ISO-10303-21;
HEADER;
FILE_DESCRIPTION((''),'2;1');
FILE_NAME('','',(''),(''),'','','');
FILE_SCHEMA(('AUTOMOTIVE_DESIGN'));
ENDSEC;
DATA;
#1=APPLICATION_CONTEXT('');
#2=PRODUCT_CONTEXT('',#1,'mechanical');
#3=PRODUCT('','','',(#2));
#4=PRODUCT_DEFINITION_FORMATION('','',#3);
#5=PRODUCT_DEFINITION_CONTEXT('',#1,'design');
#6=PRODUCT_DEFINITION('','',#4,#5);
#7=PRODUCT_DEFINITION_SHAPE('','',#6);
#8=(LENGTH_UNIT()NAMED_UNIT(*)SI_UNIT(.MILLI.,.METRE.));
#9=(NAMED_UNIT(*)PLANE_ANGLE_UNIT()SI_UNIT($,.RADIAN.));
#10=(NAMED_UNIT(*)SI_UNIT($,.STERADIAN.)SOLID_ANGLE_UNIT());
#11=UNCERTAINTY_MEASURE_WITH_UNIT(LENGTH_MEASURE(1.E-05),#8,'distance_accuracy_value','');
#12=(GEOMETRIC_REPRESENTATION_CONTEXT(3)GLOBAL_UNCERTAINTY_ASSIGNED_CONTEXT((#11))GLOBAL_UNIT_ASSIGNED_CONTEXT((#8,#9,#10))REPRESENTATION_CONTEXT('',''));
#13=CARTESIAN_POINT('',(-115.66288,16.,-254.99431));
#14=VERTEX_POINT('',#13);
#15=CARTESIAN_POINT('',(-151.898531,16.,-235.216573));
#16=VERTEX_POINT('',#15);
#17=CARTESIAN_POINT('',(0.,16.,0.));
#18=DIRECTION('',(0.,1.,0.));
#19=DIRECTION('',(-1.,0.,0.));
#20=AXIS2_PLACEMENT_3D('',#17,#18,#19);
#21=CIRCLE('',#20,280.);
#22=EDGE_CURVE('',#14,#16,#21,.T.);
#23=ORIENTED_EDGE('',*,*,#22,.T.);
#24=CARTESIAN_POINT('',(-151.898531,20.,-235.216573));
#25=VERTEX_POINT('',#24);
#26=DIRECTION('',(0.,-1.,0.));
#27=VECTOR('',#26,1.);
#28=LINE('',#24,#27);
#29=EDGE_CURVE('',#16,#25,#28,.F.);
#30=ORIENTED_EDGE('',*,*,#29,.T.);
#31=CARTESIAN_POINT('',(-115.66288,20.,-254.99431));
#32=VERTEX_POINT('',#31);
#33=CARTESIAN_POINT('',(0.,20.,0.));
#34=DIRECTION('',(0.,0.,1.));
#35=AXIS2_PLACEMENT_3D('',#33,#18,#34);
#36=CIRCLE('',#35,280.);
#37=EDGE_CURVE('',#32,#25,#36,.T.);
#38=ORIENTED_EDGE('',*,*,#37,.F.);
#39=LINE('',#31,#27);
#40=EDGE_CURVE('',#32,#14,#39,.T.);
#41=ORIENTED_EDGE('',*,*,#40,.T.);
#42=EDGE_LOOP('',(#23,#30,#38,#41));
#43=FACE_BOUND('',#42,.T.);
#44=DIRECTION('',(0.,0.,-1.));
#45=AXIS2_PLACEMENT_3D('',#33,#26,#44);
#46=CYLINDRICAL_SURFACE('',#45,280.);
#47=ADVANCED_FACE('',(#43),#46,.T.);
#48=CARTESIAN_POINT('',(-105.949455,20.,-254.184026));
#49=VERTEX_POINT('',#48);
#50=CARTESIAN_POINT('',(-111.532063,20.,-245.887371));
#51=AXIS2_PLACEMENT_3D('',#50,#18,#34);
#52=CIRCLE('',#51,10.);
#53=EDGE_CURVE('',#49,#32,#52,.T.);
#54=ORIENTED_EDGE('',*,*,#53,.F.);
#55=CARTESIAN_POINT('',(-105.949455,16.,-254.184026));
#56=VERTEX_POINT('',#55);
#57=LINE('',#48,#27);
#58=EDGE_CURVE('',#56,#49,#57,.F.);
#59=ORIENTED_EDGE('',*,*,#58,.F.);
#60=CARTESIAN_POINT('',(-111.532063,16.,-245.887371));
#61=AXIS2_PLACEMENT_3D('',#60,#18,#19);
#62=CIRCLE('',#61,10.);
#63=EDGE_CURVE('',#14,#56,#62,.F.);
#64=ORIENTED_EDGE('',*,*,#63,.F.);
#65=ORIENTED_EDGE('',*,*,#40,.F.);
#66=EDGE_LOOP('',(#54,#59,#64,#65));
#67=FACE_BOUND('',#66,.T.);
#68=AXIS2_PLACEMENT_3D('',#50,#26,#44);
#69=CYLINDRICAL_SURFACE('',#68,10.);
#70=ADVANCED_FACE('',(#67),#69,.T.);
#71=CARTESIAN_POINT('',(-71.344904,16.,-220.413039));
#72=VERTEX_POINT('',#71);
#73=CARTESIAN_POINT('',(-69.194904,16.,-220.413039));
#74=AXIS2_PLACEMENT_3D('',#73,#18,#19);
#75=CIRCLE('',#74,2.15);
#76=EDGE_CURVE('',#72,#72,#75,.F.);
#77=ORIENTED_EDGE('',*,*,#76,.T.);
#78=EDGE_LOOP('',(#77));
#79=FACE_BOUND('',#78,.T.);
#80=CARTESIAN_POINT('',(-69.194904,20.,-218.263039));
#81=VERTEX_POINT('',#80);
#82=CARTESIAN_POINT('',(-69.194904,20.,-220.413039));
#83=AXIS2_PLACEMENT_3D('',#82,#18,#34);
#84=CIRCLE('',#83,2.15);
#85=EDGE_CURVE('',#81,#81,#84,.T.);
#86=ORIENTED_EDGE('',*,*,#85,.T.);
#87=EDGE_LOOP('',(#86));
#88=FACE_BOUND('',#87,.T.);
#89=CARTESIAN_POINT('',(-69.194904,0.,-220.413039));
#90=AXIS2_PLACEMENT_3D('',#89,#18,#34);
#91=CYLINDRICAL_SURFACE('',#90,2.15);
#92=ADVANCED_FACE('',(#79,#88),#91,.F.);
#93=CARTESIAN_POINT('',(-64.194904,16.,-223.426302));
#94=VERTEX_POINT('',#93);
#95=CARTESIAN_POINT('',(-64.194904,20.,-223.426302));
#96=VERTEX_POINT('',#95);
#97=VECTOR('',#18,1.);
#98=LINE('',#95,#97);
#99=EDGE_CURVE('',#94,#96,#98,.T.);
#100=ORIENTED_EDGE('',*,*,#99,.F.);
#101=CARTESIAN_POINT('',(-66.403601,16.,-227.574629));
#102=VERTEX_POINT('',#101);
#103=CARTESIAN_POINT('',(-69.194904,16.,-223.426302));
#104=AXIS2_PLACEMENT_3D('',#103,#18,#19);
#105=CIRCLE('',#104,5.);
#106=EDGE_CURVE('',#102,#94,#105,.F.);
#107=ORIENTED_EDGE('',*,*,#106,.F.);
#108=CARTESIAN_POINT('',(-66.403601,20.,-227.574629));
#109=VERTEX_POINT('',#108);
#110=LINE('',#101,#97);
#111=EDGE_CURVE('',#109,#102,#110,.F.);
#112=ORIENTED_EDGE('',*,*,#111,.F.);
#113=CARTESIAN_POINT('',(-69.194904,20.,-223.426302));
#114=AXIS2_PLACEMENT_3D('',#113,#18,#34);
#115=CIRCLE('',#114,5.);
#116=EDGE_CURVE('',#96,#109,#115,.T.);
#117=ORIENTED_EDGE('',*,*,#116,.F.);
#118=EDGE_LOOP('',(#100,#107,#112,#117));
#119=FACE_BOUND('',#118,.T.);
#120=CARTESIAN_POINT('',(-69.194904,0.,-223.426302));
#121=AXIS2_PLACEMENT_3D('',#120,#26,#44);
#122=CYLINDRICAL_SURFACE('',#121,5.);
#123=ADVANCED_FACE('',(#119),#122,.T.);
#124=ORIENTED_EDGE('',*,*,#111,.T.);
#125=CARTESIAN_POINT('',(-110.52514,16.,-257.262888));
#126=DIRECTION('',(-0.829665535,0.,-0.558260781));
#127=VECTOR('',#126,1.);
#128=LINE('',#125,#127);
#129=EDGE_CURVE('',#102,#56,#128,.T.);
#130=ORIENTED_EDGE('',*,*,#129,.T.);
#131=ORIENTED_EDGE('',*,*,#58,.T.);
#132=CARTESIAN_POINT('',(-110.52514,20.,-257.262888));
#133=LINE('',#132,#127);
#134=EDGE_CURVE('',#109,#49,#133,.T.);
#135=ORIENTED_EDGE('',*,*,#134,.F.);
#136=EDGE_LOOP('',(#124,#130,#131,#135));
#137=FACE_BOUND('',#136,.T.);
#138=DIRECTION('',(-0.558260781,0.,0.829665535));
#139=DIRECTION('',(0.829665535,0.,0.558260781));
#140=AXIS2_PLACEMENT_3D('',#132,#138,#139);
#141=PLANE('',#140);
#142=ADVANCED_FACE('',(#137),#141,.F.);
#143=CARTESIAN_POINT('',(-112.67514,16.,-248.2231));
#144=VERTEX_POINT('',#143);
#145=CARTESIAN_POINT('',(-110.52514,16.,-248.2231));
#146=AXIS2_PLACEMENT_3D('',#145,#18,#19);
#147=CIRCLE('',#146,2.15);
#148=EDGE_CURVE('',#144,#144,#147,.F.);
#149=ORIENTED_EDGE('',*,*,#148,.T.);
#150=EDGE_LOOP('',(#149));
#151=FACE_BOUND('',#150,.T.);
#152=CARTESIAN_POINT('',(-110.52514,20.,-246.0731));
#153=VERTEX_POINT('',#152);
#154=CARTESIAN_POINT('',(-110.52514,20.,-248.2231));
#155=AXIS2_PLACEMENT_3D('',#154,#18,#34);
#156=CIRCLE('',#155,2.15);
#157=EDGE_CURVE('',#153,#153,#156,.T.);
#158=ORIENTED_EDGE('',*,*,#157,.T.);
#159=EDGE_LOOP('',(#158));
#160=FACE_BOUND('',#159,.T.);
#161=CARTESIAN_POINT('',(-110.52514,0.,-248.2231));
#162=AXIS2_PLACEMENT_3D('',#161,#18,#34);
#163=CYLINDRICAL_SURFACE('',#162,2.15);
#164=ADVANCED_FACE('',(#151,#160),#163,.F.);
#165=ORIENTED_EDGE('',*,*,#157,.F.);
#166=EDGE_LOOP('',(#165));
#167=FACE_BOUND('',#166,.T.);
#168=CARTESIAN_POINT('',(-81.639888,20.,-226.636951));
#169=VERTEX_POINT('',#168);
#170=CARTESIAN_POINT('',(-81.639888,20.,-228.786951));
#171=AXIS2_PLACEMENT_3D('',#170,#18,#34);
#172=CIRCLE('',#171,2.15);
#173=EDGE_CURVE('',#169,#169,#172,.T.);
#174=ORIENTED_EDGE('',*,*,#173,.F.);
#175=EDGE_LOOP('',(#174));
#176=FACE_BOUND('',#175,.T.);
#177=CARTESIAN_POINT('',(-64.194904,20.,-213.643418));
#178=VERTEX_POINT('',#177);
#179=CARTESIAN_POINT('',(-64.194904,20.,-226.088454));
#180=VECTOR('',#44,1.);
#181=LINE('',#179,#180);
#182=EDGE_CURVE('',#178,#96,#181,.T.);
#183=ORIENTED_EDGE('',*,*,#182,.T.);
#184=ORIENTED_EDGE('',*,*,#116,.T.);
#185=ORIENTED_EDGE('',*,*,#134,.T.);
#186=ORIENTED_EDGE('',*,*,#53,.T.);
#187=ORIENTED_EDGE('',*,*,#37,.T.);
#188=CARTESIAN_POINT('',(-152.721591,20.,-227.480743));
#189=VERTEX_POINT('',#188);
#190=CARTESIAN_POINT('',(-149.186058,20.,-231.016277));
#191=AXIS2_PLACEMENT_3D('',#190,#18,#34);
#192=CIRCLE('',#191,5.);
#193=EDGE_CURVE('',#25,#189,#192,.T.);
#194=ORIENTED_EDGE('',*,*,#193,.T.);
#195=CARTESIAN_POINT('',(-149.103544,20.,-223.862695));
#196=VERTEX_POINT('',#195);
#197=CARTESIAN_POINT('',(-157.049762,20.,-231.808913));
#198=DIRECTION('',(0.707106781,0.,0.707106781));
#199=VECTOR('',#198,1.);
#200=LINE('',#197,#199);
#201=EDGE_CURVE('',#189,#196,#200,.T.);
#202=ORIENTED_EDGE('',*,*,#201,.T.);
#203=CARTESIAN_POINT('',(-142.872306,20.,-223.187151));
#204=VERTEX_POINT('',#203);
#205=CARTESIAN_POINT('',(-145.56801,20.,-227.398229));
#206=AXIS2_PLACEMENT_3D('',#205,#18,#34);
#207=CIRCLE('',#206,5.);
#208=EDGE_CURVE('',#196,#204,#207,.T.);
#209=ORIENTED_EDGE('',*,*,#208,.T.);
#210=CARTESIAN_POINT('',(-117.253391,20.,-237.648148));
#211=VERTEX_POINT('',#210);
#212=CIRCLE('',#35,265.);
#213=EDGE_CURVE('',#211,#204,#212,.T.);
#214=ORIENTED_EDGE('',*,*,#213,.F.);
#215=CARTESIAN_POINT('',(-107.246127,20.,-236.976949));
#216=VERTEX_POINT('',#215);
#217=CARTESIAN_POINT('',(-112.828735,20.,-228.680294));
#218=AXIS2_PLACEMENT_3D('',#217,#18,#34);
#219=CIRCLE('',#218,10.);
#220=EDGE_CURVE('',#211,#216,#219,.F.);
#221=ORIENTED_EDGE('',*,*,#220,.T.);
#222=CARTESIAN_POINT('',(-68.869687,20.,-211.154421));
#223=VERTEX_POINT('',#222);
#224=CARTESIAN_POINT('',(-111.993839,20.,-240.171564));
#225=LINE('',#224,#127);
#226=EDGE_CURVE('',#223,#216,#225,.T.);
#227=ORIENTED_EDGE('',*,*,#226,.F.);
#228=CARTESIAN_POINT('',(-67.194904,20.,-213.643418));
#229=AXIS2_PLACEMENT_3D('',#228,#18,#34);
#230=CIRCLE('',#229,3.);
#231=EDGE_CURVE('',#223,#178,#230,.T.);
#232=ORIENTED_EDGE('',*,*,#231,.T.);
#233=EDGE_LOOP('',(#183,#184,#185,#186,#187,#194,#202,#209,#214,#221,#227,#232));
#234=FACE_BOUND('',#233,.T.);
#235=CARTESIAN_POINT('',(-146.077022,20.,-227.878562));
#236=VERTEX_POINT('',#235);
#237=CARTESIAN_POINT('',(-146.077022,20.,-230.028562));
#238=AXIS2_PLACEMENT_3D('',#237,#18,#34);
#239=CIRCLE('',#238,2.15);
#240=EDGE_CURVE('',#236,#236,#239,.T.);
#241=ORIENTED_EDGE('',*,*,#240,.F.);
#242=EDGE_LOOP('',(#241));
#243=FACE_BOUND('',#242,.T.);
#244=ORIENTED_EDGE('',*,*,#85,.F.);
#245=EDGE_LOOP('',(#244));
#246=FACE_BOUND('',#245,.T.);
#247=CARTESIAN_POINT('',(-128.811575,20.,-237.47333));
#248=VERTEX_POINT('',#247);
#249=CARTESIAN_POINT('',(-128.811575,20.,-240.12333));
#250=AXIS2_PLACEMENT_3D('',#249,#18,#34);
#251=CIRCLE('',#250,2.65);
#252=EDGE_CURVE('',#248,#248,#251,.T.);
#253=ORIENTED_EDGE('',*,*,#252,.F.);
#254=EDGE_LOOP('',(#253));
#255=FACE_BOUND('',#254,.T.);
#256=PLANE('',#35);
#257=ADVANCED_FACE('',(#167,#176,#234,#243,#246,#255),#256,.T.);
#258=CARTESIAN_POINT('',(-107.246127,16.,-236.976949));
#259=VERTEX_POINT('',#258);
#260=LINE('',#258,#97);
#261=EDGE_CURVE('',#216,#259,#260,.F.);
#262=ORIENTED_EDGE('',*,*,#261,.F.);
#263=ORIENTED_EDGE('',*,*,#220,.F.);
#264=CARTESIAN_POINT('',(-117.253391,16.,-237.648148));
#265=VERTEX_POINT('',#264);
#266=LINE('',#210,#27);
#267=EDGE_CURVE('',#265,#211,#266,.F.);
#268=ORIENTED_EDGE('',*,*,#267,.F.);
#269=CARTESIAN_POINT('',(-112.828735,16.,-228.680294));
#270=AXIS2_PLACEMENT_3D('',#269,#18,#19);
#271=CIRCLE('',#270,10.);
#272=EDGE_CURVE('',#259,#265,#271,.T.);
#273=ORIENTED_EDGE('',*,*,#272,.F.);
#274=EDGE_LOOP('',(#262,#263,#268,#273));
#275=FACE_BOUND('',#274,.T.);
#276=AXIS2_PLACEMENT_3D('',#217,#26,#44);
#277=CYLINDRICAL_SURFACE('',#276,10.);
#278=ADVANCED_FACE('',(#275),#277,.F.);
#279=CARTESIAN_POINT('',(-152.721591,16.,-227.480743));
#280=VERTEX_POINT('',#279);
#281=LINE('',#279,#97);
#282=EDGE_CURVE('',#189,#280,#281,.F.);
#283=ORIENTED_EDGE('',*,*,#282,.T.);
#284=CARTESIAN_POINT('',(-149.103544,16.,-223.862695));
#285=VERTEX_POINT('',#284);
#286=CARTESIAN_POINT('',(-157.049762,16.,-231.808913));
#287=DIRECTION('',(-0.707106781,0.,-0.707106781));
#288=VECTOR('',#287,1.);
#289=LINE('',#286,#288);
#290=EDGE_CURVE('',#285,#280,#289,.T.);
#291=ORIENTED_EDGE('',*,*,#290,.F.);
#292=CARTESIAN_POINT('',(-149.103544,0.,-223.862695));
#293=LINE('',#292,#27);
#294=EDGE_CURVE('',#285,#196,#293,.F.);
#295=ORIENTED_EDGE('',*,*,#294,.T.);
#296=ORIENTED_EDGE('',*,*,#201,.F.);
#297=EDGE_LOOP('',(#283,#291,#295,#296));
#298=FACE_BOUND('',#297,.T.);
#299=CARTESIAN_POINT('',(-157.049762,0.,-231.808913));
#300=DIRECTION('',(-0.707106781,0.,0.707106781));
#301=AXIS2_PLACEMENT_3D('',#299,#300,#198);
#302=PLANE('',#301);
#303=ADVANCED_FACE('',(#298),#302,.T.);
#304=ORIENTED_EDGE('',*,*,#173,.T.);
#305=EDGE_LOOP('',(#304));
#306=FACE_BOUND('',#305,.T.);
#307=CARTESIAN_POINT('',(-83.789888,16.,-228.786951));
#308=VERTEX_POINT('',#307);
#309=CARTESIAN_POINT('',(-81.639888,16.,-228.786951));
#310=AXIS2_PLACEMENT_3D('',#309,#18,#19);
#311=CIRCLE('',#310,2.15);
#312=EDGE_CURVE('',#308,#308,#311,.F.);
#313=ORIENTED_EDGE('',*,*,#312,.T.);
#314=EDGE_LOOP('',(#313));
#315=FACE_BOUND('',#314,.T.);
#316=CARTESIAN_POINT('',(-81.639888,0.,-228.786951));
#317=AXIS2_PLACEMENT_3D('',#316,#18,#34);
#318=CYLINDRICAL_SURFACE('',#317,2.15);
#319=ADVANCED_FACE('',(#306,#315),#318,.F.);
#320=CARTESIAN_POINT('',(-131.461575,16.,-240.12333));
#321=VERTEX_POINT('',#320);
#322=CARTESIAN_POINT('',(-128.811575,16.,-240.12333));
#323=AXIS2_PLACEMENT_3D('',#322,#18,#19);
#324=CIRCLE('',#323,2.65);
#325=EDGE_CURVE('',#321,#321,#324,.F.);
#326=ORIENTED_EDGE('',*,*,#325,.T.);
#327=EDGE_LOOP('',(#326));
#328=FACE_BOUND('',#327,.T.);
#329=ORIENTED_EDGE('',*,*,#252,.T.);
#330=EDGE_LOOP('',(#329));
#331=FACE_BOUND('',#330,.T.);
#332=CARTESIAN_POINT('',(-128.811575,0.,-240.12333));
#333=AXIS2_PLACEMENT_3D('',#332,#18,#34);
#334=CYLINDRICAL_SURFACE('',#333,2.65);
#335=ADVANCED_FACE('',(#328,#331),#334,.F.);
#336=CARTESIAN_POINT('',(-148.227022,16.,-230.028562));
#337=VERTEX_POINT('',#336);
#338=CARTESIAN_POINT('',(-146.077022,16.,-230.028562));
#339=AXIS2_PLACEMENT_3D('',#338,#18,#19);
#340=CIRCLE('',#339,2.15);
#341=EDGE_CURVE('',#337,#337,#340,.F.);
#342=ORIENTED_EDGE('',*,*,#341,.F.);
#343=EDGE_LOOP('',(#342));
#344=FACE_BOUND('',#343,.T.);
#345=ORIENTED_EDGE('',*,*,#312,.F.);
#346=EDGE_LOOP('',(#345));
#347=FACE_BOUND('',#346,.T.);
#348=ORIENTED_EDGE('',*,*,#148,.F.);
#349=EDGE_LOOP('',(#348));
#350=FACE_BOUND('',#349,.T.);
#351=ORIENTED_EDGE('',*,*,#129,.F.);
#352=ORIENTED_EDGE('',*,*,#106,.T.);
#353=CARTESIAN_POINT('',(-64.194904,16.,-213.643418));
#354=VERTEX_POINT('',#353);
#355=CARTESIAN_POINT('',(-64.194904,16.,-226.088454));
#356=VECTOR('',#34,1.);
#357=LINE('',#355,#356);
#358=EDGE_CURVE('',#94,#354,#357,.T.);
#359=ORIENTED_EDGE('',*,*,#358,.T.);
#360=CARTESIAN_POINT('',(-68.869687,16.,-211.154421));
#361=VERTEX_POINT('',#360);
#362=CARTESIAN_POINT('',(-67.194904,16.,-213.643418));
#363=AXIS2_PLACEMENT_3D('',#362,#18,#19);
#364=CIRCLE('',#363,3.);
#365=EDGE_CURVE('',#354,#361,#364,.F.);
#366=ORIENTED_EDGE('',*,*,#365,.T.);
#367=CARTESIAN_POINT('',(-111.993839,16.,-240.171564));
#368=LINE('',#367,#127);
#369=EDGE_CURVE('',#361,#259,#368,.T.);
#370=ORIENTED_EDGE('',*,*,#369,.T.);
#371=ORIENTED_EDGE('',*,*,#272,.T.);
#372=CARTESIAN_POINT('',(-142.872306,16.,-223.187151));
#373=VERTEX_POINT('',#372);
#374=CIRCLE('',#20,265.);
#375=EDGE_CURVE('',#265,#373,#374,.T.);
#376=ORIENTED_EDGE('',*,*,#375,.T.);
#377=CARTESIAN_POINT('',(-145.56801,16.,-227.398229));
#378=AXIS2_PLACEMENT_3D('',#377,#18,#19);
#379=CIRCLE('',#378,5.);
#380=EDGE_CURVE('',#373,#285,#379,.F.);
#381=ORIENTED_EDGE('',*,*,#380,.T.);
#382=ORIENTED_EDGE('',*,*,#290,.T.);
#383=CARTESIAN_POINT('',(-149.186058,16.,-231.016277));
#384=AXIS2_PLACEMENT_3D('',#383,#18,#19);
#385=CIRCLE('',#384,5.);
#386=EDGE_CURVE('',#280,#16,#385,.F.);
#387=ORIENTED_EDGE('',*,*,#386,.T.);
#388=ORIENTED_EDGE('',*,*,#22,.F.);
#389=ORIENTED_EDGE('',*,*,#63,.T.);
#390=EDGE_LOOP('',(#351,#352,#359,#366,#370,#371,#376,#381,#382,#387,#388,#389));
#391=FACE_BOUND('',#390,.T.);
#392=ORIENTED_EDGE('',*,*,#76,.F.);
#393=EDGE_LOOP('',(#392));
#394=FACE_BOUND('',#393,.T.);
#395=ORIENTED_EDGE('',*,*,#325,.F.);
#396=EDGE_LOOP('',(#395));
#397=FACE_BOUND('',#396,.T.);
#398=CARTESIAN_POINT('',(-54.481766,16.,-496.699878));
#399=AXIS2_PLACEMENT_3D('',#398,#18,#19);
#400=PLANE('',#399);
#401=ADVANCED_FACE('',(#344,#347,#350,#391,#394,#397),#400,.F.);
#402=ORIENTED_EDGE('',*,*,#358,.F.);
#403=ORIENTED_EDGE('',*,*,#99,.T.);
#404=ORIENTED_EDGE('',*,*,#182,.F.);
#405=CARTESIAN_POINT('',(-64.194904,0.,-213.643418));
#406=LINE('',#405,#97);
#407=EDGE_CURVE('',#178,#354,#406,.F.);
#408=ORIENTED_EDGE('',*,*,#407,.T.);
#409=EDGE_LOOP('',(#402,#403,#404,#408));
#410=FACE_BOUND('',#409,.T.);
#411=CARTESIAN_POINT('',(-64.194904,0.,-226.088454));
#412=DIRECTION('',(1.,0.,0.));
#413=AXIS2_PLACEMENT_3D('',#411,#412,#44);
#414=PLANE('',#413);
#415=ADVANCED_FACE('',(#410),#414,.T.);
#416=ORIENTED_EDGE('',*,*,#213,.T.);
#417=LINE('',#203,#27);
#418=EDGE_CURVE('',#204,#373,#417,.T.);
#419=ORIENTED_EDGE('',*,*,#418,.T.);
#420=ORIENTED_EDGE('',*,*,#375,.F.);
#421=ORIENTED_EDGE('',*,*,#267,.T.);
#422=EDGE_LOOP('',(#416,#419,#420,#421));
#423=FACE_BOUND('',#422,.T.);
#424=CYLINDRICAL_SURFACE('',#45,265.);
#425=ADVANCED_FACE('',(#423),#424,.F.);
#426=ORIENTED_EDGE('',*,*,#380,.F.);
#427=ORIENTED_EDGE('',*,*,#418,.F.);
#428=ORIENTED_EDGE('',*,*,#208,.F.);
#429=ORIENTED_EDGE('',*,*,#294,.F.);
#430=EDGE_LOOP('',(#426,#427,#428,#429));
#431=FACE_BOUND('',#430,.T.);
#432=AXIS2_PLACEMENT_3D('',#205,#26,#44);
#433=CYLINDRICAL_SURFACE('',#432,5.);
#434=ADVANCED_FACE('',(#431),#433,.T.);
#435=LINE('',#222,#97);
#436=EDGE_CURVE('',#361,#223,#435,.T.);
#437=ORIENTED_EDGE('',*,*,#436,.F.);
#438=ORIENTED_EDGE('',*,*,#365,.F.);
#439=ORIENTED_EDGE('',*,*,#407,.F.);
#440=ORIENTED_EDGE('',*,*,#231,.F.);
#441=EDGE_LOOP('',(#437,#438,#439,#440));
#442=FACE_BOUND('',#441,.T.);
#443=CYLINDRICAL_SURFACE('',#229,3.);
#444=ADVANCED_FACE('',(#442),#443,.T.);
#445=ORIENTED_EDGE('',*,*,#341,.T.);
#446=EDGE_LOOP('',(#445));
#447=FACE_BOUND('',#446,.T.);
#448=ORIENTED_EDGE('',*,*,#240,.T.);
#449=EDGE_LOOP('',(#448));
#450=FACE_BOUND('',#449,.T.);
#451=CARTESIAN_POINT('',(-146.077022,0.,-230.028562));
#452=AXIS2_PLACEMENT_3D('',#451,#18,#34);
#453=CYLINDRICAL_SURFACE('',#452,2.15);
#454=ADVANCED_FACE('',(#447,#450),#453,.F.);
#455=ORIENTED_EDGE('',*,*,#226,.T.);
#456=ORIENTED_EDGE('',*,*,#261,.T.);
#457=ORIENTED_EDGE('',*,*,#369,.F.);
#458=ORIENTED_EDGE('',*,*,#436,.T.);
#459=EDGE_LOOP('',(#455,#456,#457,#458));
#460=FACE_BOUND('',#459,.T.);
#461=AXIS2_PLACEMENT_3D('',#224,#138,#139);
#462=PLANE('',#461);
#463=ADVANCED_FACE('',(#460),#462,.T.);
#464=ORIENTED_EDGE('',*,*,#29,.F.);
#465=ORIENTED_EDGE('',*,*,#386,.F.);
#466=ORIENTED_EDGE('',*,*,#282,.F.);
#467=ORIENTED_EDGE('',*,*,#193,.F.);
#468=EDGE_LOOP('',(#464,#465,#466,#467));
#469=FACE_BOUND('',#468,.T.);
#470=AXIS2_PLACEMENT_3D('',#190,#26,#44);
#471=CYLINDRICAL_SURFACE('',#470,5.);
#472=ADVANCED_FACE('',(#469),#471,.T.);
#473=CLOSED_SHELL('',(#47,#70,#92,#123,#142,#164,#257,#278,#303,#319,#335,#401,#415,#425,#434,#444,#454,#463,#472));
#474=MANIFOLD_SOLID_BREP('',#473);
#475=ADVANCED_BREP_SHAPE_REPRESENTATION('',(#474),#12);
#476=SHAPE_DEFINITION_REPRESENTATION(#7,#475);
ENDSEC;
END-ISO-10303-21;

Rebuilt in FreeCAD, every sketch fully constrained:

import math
import FreeCAD as App
import Part
import Sketcher

V = App.Vector
Q = App.Units.Quantity


def edges_at(feature, points):
    """Names of the edges that pass closest to the given points."""
    edges = feature.Shape.Edges
    near = lambda p: min(range(len(edges)), key=lambda i: edges[i].distToShape(Part.Vertex(*p))[0])
    return sorted({f"Edge{near(p) + 1}" for p in points})


def add_polygon(sketch, points):
    """Adds a closed chain of lines whose ends are joined by coincident constraints."""
    first, n = sketch.GeometryCount, len(points)
    for a, b in zip(points, points[1:] + points[:1]):
        sketch.addGeometry(Part.LineSegment(App.Vector(*a, 0), App.Vector(*b, 0)), False)
    for i in range(n):
        sketch.addConstraint(Sketcher.Constraint("Coincident", first + i, 2, first + (i + 1) % n, 1))

doc = App.newDocument("Part")
params = doc.addObject("Spreadsheet::Sheet", "Params")
for row, (alias, value) in enumerate([
    ("sketch1_diameter", "550 mm"),
    ("sketch1_diameter2", "510 mm"),
    ("pad1_length", "10 mm"),
    ("sketch3_radius", "280 mm"),
    ("sketch3_radius2", "265 mm"),
    ("sketch3_width", "60 mm"),
    ("pad2_length", "10 mm"),
    ("sketch4_diameter", "5.3 mm"),
    ("sketch4_diameter2", "4.3 mm"),
    ("sketch5_radius", "280 mm"),
    ("sketch5_radius2", "265 mm"),
    ("sketch6_height", "12 mm"),
    ("fillet_radius", "3 mm"),
    ("fillet2_radius", "10 mm"),
    ("fillet3_radius", "5 mm"),
], start=1):
    params.set(f"A{row}", alias)
    params.set(f"B{row}", "=" + value)
    params.setAlias(f"B{row}", alias)

body = doc.addObject("PartDesign::Body", "Body")

sketch1 = body.newObject("Sketcher::SketchObject", "Sketch")
sketch1.AttachmentSupport = (doc.getObject("XZ_Plane"), [""])
sketch1.MapMode = "FlatFace"
sketch1.addGeometry([
    Part.Circle(V(0, 0, 0), V(0, 0, 1), 275),
    Part.Circle(V(0, 0, 0), V(0, 0, 1), 255),
], False)
sketch1.addConstraint([
    Sketcher.Constraint("Coincident", 0, 3, -1, 1),
    Sketcher.Constraint("Coincident", 1, 3, -1, 1),
    Sketcher.Constraint("Diameter", 0, 550.0),
    Sketcher.Constraint("Diameter", 1, 510.0),
])
sketch1.setExpression("Constraints[2]", "Params.sketch1_diameter")
sketch1.setExpression("Constraints[3]", "Params.sketch1_diameter2")
pad1 = body.newObject("PartDesign::Pad", "Pad")
pad1.Profile = sketch1
pad1.setExpression("Length", "Params.pad1_length")
pad1.Reversed = True

sketch2 = body.newObject("Sketcher::SketchObject", "Sketch001")
sketch2.Placement = App.Placement(V(76.336747, 0, -113.448715), App.Rotation(V(0.829665535, 0, 0.558260781), V(0, 1, 0), V(-0.558260781, 0, 0.829665535), "ZXY"))
add_polygon(sketch2, [(-304.093801, 16), (-304.093801, -9.075172), (447.64626, -9.075172), (447.64626, 16)])
sketch2.addConstraint([
    Sketcher.Constraint("Vertical", 0),
    Sketcher.Constraint("Horizontal", 1),
    Sketcher.Constraint("Vertical", 2),
    Sketcher.Constraint("Horizontal", 3),
    Sketcher.Constraint("DistanceY", -1, 1, 2, 2, 16.0),
    Sketcher.Constraint("DistanceX", 1, 1, 1, 2, 751.740061),
    Sketcher.Constraint("DistanceY", 0, 2, 0, 1, 25.075172),
    Sketcher.Constraint("DistanceX", 0, 2, -1, 1, 304.093801),
])
pocket1 = body.newObject("PartDesign::Pocket", "Pocket")
pocket1.Profile = sketch2
pocket1.Type = "ThroughAll"
pocket1.Midplane = True
body2 = doc.addObject("PartDesign::Body", "Body001")

sketch3 = body2.newObject("Sketcher::SketchObject", "Sketch002")
sketch3.AttachmentSupport = (doc.getObject("XZ_Plane001"), [""])
sketch3.MapMode = "FlatFace"
sketch3.AttachmentOffset = App.Placement(V(0, 0, -10), App.Rotation())
sketch3.addGeometry([
    Part.LineSegment(V(-25.423255, -200, 0), V(-110.52514, -257.262888, 0)),
    Part.ArcOfCircle(Part.Circle(V(0, 0, 0), V(0, 0, 1), 280), math.radians(-156.750699), math.radians(-113.249301)),
    Part.LineSegment(V(-257.262888, -110.52514, 0), V(-200, -25.423255, 0)),
    Part.LineSegment(V(-200, -25.423255, 0), V(-200, 25.423255, 0)),
    Part.LineSegment(V(-200, 25.423255, 0), V(-257.262888, 110.52514, 0)),
    Part.ArcOfCircle(Part.Circle(V(0, 0, 0), V(0, 0, 1), 280), math.radians(113.249301), math.radians(156.750699)),
    Part.LineSegment(V(-110.52514, 257.262888, 0), V(-25.423255, 200, 0)),
    Part.LineSegment(V(-25.423255, 200, 0), V(25.423255, 200, 0)),
    Part.LineSegment(V(25.423255, 200, 0), V(110.52514, 257.262888, 0)),
    Part.ArcOfCircle(Part.Circle(V(0, 0, 0), V(0, 0, 1), 280), math.radians(23.249301), math.radians(66.750699)),
    Part.LineSegment(V(257.262888, 110.52514, 0), V(200, 25.423255, 0)),
    Part.LineSegment(V(200, 25.423255, 0), V(200, -25.423255, 0)),
    Part.LineSegment(V(200, -25.423255, 0), V(257.262888, -110.52514, 0)),
    Part.ArcOfCircle(Part.Circle(V(0, 0, 0), V(0, 0, 1), 280), math.radians(-66.750699), math.radians(-23.249301)),
    Part.LineSegment(V(110.52514, -257.262888, 0), V(25.423255, -200, 0)),
    Part.LineSegment(V(25.423255, -200, 0), V(-25.423255, -200, 0)),
    Part.LineSegment(V(30, -185, 0), V(111.993839, -240.171564, 0)),
    Part.ArcOfCircle(Part.Circle(V(0, 0, 0), V(0, 0, 1), 265), math.radians(-65), math.radians(-25)),
    Part.LineSegment(V(240.171564, -111.993839, 0), V(185, -30, 0)),
    Part.LineSegment(V(185, -30, 0), V(185, 30, 0)),
    Part.LineSegment(V(185, 30, 0), V(240.171564, 111.993839, 0)),
    Part.ArcOfCircle(Part.Circle(V(0, 0, 0), V(0, 0, 1), 265), math.radians(25), math.radians(65)),
    Part.LineSegment(V(111.993839, 240.171564, 0), V(30, 185, 0)),
    Part.LineSegment(V(30, 185, 0), V(-30, 185, 0)),
    Part.LineSegment(V(-30, 185, 0), V(-111.993839, 240.171564, 0)),
    Part.ArcOfCircle(Part.Circle(V(0, 0, 0), V(0, 0, 1), 265), math.radians(115), math.radians(155)),
    Part.LineSegment(V(-240.171564, 111.993839, 0), V(-185, 30, 0)),
    Part.LineSegment(V(-185, 30, 0), V(-185, -30, 0)),
    Part.LineSegment(V(-185, -30, 0), V(-240.171564, -111.993839, 0)),
    Part.ArcOfCircle(Part.Circle(V(0, 0, 0), V(0, 0, 1), 265), math.radians(-155), math.radians(-115)),
    Part.LineSegment(V(-111.993839, -240.171564, 0), V(-30, -185, 0)),
    Part.LineSegment(V(-30, -185, 0), V(30, -185, 0)),
], False)
sketch3.addConstraint([
    Sketcher.Constraint("Coincident", 0, 2, 1, 2),
    Sketcher.Constraint("Coincident", 1, 1, 2, 1),
    Sketcher.Constraint("Coincident", 2, 2, 3, 1),
    Sketcher.Constraint("Coincident", 3, 2, 4, 1),
    Sketcher.Constraint("Coincident", 4, 2, 5, 2),
    Sketcher.Constraint("Coincident", 5, 1, 6, 1),
    Sketcher.Constraint("Coincident", 6, 2, 7, 1),
    Sketcher.Constraint("Coincident", 7, 2, 8, 1),
    Sketcher.Constraint("Coincident", 8, 2, 9, 2),
    Sketcher.Constraint("Coincident", 9, 1, 10, 1),
    Sketcher.Constraint("Coincident", 10, 2, 11, 1),
    Sketcher.Constraint("Coincident", 11, 2, 12, 1),
    Sketcher.Constraint("Coincident", 12, 2, 13, 2),
    Sketcher.Constraint("Coincident", 13, 1, 14, 1),
    Sketcher.Constraint("Coincident", 14, 2, 15, 1),
    Sketcher.Constraint("Coincident", 15, 2, 0, 1),
    Sketcher.Constraint("Coincident", 16, 2, 17, 1),
    Sketcher.Constraint("Coincident", 17, 2, 18, 1),
    Sketcher.Constraint("Coincident", 18, 2, 19, 1),
    Sketcher.Constraint("Coincident", 19, 2, 20, 1),
    Sketcher.Constraint("Coincident", 20, 2, 21, 1),
    Sketcher.Constraint("Coincident", 21, 2, 22, 1),
    Sketcher.Constraint("Coincident", 22, 2, 23, 1),
    Sketcher.Constraint("Coincident", 23, 2, 24, 1),
    Sketcher.Constraint("Coincident", 24, 2, 25, 1),
    Sketcher.Constraint("Coincident", 25, 2, 26, 1),
    Sketcher.Constraint("Coincident", 26, 2, 27, 1),
    Sketcher.Constraint("Coincident", 27, 2, 28, 1),
    Sketcher.Constraint("Coincident", 28, 2, 29, 1),
    Sketcher.Constraint("Coincident", 29, 2, 30, 1),
    Sketcher.Constraint("Coincident", 30, 2, 31, 1),
    Sketcher.Constraint("Coincident", 31, 2, 16, 1),
    Sketcher.Constraint("Vertical", 3),
    Sketcher.Constraint("Horizontal", 7),
    Sketcher.Constraint("Vertical", 11),
    Sketcher.Constraint("Horizontal", 15),
    Sketcher.Constraint("Vertical", 19),
    Sketcher.Constraint("Horizontal", 23),
    Sketcher.Constraint("Vertical", 27),
    Sketcher.Constraint("Horizontal", 31),
    Sketcher.Constraint("Coincident", 1, 3, -1, 1),
    Sketcher.Constraint("Coincident", 5, 3, -1, 1),
    Sketcher.Constraint("Coincident", 9, 3, -1, 1),
    Sketcher.Constraint("Coincident", 13, 3, -1, 1),
    Sketcher.Constraint("Coincident", 17, 3, -1, 1),
    Sketcher.Constraint("Coincident", 21, 3, -1, 1),
    Sketcher.Constraint("Coincident", 25, 3, -1, 1),
    Sketcher.Constraint("Coincident", 29, 3, -1, 1),
    Sketcher.Constraint("Equal", 1, 5),
    Sketcher.Constraint("Equal", 5, 9),
    Sketcher.Constraint("Equal", 9, 13),
    Sketcher.Constraint("Equal", 17, 21),
    Sketcher.Constraint("Equal", 21, 25),
    Sketcher.Constraint("Equal", 25, 29),
    Sketcher.Constraint("Symmetric", 2, 2, 10, 2, -1, 1),
    Sketcher.Constraint("Symmetric", 6, 2, 14, 2, -1, 1),
    Sketcher.Constraint("Symmetric", 18, 2, 26, 2, -1, 1),
    Sketcher.Constraint("Symmetric", 22, 2, 30, 2, -1, 1),
    Sketcher.Constraint("Perpendicular", 0, 4),
    Sketcher.Constraint("Perpendicular", 2, 6),
    Sketcher.Constraint("Perpendicular", 4, 8),
    Sketcher.Constraint("Perpendicular", 6, 10),
    Sketcher.Constraint("Perpendicular", 8, 12),
    Sketcher.Constraint("Perpendicular", 10, 14),
    Sketcher.Constraint("Parallel", 14, 16),
    Sketcher.Constraint("Parallel", 12, 18),
    Sketcher.Constraint("Perpendicular", 16, 20),
    Sketcher.Constraint("Perpendicular", 18, 22),
    Sketcher.Constraint("Perpendicular", 20, 24),
    Sketcher.Constraint("Perpendicular", 22, 26),
    Sketcher.Constraint("Perpendicular", 24, 28),
    Sketcher.Constraint("Perpendicular", 26, 30),
    Sketcher.Constraint("Horizontal", 5, 1, 8, 2),
    Sketcher.Constraint("Horizontal", 4, 2, 9, 1),
    Sketcher.Constraint("Horizontal", 3, 2, 10, 2),
    Sketcher.Constraint("Horizontal", 2, 2, 11, 2),
    Sketcher.Constraint("Horizontal", 19, 2, 26, 2),
    Sketcher.Constraint("Horizontal", 18, 2, 27, 2),
    Sketcher.Constraint("Vertical", 6, 2, 15, 2),
    Sketcher.Constraint("Vertical", 23, 2, 30, 2),
    Sketcher.Constraint("Vertical", 22, 2, 31, 2),
    Sketcher.Constraint("Equal", 15, 3),
    Sketcher.Constraint("Equal", 31, 19),
    Sketcher.Constraint("Equal", 0, 2),
    Sketcher.Constraint("Equal", 16, 18),
    Sketcher.Constraint("Radius", 1, 280.0),
    Sketcher.Constraint("Radius", 17, 265.0),
    Sketcher.Constraint("DistanceX", 23, 2, 23, 1, 60.0),
    Sketcher.Constraint("DistanceX", 2, 2, -1, 1, 200.0),
    Sketcher.Constraint("DistanceX", -1, 1, 18, 2, 185.0),
    Sketcher.Constraint("DistanceX", 7, 1, 7, 2, 50.846511),
    Sketcher.Constraint("DistanceX", 0, 2, -1, 1, 110.52514),
])
sketch3.setExpression("Constraints[85]", "Params.sketch3_radius")
sketch3.setExpression("Constraints[86]", "Params.sketch3_radius2")
sketch3.setExpression("Constraints[87]", "Params.sketch3_width")
pad2 = body2.newObject("PartDesign::Pad", "Pad001")
pad2.Profile = sketch3
pad2.setExpression("Length", "Params.pad2_length")
pad2.Reversed = True

sketch4 = body2.newObject("Sketcher::SketchObject", "Sketch003")
sketch4.AttachmentSupport = (doc.getObject("XZ_Plane001"), [""])
sketch4.MapMode = "FlatFace"
sketch4.AttachmentOffset = App.Placement(V(0, 0, -20), App.Rotation())
sketch4.addGeometry([
    Part.Circle(V(-10, -192.5, 0), V(0, 0, 1), 2.65),
    Part.Circle(V(10, -192.5, 0), V(0, 0, 1), 2.65),
    Part.Circle(V(-10, 192.5, 0), V(0, 0, 1), 2.65),
    Part.Circle(V(10, 192.5, 0), V(0, 0, 1), 2.65),
    Part.Circle(V(192.5, -10, 0), V(0, 0, 1), 2.65),
    Part.Circle(V(192.5, 10, 0), V(0, 0, 1), 2.65),
    Part.Circle(V(-192.5, -10, 0), V(0, 0, 1), 2.65),
    Part.Circle(V(-192.5, 10, 0), V(0, 0, 1), 2.65),
    Part.Circle(V(-110.52514, -248.2231, 0), V(0, 0, 1), 2.15),
    Part.Circle(V(-27.711628, -192.5, 0), V(0, 0, 1), 2.15),
    Part.Circle(V(-44.304938, -203.665216, 0), V(0, 0, 1), 2.15),
    Part.Circle(V(-56.749921, -212.039127, 0), V(0, 0, 1), 2.15),
    Part.Circle(V(-69.194904, -220.413039, 0), V(0, 0, 1), 2.15),
    Part.Circle(V(-81.639888, -228.786951, 0), V(0, 0, 1), 2.15),
    Part.Circle(V(-146.077022, -230.028562, 0), V(0, 0, 1), 2.15),
    Part.Circle(V(-164.41552, -217.29973, 0), V(0, 0, 1), 2.15),
    Part.Circle(V(-183.638938, -201.316607, 0), V(0, 0, 1), 2.15),
    Part.Circle(V(-201.316607, -183.638938, 0), V(0, 0, 1), 2.15),
    Part.Circle(V(-217.29973, -164.41552, 0), V(0, 0, 1), 2.15),
    Part.Circle(V(-230.028562, -146.077022, 0), V(0, 0, 1), 2.15),
    Part.Circle(V(-128.811575, -240.12333, 0), V(0, 0, 1), 2.65),
    Part.Circle(V(-240.12333, -128.811575, 0), V(0, 0, 1), 2.65),
    Part.Circle(V(-228.786951, -81.639888, 0), V(0, 0, 1), 2.15),
    Part.Circle(V(-220.413039, -69.194904, 0), V(0, 0, 1), 2.15),
    Part.Circle(V(-212.039127, -56.749921, 0), V(0, 0, 1), 2.15),
    Part.Circle(V(-203.665216, -44.304938, 0), V(0, 0, 1), 2.15),
    Part.Circle(V(-192.5, -27.711628, 0), V(0, 0, 1), 2.15),
    Part.Circle(V(-248.2231, -110.52514, 0), V(0, 0, 1), 2.15),
    Part.Circle(V(192.5, -27.711628, 0), V(0, 0, 1), 2.15),
    Part.Circle(V(248.2231, -110.52514, 0), V(0, 0, 1), 2.15),
    Part.Circle(V(203.665216, -44.304938, 0), V(0, 0, 1), 2.15),
    Part.Circle(V(212.039127, -56.749921, 0), V(0, 0, 1), 2.15),
    Part.Circle(V(220.413039, -69.194904, 0), V(0, 0, 1), 2.15),
    Part.Circle(V(228.786951, -81.639888, 0), V(0, 0, 1), 2.15),
    Part.Circle(V(240.12333, -128.811575, 0), V(0, 0, 1), 2.65),
    Part.Circle(V(230.028562, -146.077022, 0), V(0, 0, 1), 2.15),
    Part.Circle(V(128.811575, -240.12333, 0), V(0, 0, 1), 2.65),
    Part.Circle(V(201.316607, -183.638938, 0), V(0, 0, 1), 2.15),
    Part.Circle(V(183.638938, -201.316607, 0), V(0, 0, 1), 2.15),
    Part.Circle(V(164.41552, -217.29973, 0), V(0, 0, 1), 2.15),
    Part.Circle(V(146.077022, -230.028562, 0), V(0, 0, 1), 2.15),
    Part.Circle(V(81.639888, -228.786951, 0), V(0, 0, 1), 2.15),
    Part.Circle(V(69.194904, -220.413039, 0), V(0, 0, 1), 2.15),
    Part.Circle(V(56.749921, -212.039127, 0), V(0, 0, 1), 2.15),
    Part.Circle(V(44.304938, -203.665216, 0), V(0, 0, 1), 2.15),
    Part.Circle(V(110.52514, -248.2231, 0), V(0, 0, 1), 2.15),
    Part.Circle(V(27.711628, -192.5, 0), V(0, 0, 1), 2.15),
    Part.Circle(V(217.29973, -164.41552, 0), V(0, 0, 1), 2.15),
], False)
sketch4.addConstraint([
    Sketcher.Constraint("Equal", 0, 1),
    Sketcher.Constraint("Equal", 1, 2),
    Sketcher.Constraint("Equal", 2, 3),
    Sketcher.Constraint("Equal", 3, 4),
    Sketcher.Constraint("Equal", 4, 5),
    Sketcher.Constraint("Equal", 5, 6),
    Sketcher.Constraint("Equal", 6, 7),
    Sketcher.Constraint("Equal", 8, 9),
    Sketcher.Constraint("Equal", 9, 10),
    Sketcher.Constraint("Equal", 10, 11),
    Sketcher.Constraint("Equal", 11, 12),
    Sketcher.Constraint("Equal", 12, 13),
    Sketcher.Constraint("Equal", 13, 14),
    Sketcher.Constraint("Equal", 14, 15),
    Sketcher.Constraint("Equal", 15, 16),
    Sketcher.Constraint("Equal", 16, 17),
    Sketcher.Constraint("Equal", 17, 18),
    Sketcher.Constraint("Equal", 18, 19),
    Sketcher.Constraint("Equal", 7, 20),
    Sketcher.Constraint("Equal", 20, 21),
    Sketcher.Constraint("Equal", 19, 22),
    Sketcher.Constraint("Equal", 22, 23),
    Sketcher.Constraint("Equal", 23, 24),
    Sketcher.Constraint("Equal", 24, 25),
    Sketcher.Constraint("Equal", 25, 26),
    Sketcher.Constraint("Equal", 26, 27),
    Sketcher.Constraint("Equal", 27, 28),
    Sketcher.Constraint("Equal", 28, 29),
    Sketcher.Constraint("Equal", 29, 30),
    Sketcher.Constraint("Equal", 30, 31),
    Sketcher.Constraint("Equal", 31, 32),
    Sketcher.Constraint("Equal", 32, 33),
    Sketcher.Constraint("Equal", 21, 34),
    Sketcher.Constraint("Equal", 33, 35),
    Sketcher.Constraint("Equal", 34, 36),
    Sketcher.Constraint("Equal", 35, 37),
    Sketcher.Constraint("Equal", 37, 38),
    Sketcher.Constraint("Equal", 38, 39),
    Sketcher.Constraint("Equal", 39, 40),
    Sketcher.Constraint("Equal", 40, 41),
    Sketcher.Constraint("Equal", 41, 42),
    Sketcher.Constraint("Equal", 42, 43),
    Sketcher.Constraint("Equal", 43, 44),
    Sketcher.Constraint("Equal", 44, 45),
    Sketcher.Constraint("Equal", 45, 46),
    Sketcher.Constraint("Equal", 46, 47),
    Sketcher.Constraint("Symmetric", 1, 3, 2, 3, -1, 1),
    Sketcher.Constraint("Symmetric", 0, 3, 3, 3, -1, 1),
    Sketcher.Constraint("Symmetric", 5, 3, 6, 3, -1, 1),
    Sketcher.Constraint("Symmetric", 4, 3, 7, 3, -1, 1),
    Sketcher.Constraint("Symmetric", 0, 3, 1, 3, -2),
    Sketcher.Constraint("Symmetric", 4, 3, 6, 3, -2),
    Sketcher.Constraint("Symmetric", 26, 3, 28, 3, -2),
    Sketcher.Constraint("Symmetric", 27, 3, 29, 3, -2),
    Sketcher.Constraint("Symmetric", 25, 3, 30, 3, -2),
    Sketcher.Constraint("Symmetric", 24, 3, 31, 3, -2),
    Sketcher.Constraint("Symmetric", 23, 3, 32, 3, -2),
    Sketcher.Constraint("Symmetric", 22, 3, 33, 3, -2),
    Sketcher.Constraint("Symmetric", 21, 3, 34, 3, -2),
    Sketcher.Constraint("Symmetric", 19, 3, 35, 3, -2),
    Sketcher.Constraint("Symmetric", 20, 3, 36, 3, -2),
    Sketcher.Constraint("Symmetric", 17, 3, 37, 3, -2),
    Sketcher.Constraint("Symmetric", 16, 3, 38, 3, -2),
    Sketcher.Constraint("Symmetric", 15, 3, 39, 3, -2),
    Sketcher.Constraint("Symmetric", 14, 3, 40, 3, -2),
    Sketcher.Constraint("Symmetric", 13, 3, 41, 3, -2),
    Sketcher.Constraint("Symmetric", 12, 3, 42, 3, -2),
    Sketcher.Constraint("Symmetric", 11, 3, 43, 3, -2),
    Sketcher.Constraint("Symmetric", 10, 3, 44, 3, -2),
    Sketcher.Constraint("Symmetric", 8, 3, 45, 3, -2),
    Sketcher.Constraint("Symmetric", 9, 3, 46, 3, -2),
    Sketcher.Constraint("Symmetric", 18, 3, 47, 3, -2),
    Sketcher.Constraint("Horizontal", 1, 3, 9, 3),
    Sketcher.Constraint("Vertical", 7, 3, 26, 3),
    Sketcher.Constraint("Diameter", 0, 5.3),
    Sketcher.Constraint("Diameter", 8, 4.3),
    Sketcher.Constraint("DistanceX", 0, 3, -1, 1, 10.0),
    Sketcher.Constraint("DistanceY", 4, 3, -1, 1, 10.0),
    Sketcher.Constraint("DistanceY", 0, 3, 2, 3, 385.0),
    Sketcher.Constraint("DistanceX", 6, 3, 4, 3, 385.0),
    Sketcher.Constraint("DistanceY", 8, 3, -1, 1, 248.2231),
    Sketcher.Constraint("DistanceX", 27, 3, -1, 1, 248.2231),
    Sketcher.Constraint("DistanceX", 8, 3, 10, 3, 66.220201),
    Sketcher.Constraint("DistanceX", 14, 3, 11, 3, 89.327101),
    Sketcher.Constraint("DistanceX", 15, 3, 11, 3, 107.665598),
    Sketcher.Constraint("DistanceY", 20, 3, 15, 3, 22.823601),
    Sketcher.Constraint("DistanceX", 21, 3, 18, 3, 22.823601),
    Sketcher.Constraint("DistanceY", 29, 3, 30, 3, 66.220201),
    Sketcher.Constraint("DistanceY", 35, 3, 31, 3, 89.327101),
    Sketcher.Constraint("DistanceX", 8, 3, -1, 1, 110.52514),
    Sketcher.Constraint("DistanceX", 11, 3, -1, 1, 56.749921),
    Sketcher.Constraint("DistanceY", 12, 3, -1, 1, 220.413039),
    Sketcher.Constraint("DistanceY", 13, 3, -1, 1, 228.786951),
    Sketcher.Constraint("DistanceY", 14, 3, -1, 1, 230.028562),
    Sketcher.Constraint("DistanceY", 15, 3, -1, 1, 217.29973),
    Sketcher.Constraint("DistanceX", 18, 3, -1, 1, 217.29973),
    Sketcher.Constraint("DistanceY", 18, 3, -1, 1, 164.41552),
    Sketcher.Constraint("DistanceX", 19, 3, -1, 1, 230.028562),
    Sketcher.Constraint("DistanceX", 22, 3, -1, 1, 228.786951),
    Sketcher.Constraint("DistanceX", 23, 3, -1, 1, 220.413039),
    Sketcher.Constraint("DistanceY", 24, 3, -1, 1, 56.749921),
    Sketcher.Constraint("DistanceY", 25, 3, -1, 1, 44.304938),
    Sketcher.Constraint("DistanceX", 10, 3, 9, 3, 16.593311),
    Sketcher.Constraint("DistanceY", 11, 3, 10, 3, 8.373912),
    Sketcher.Constraint("DistanceY", 12, 3, 11, 3, 8.373912),
    Sketcher.Constraint("DistanceX", 13, 3, 10, 3, 37.334949),
    Sketcher.Constraint("DistanceX", 16, 3, 13, 3, 101.99905),
    Sketcher.Constraint("DistanceY", 12, 3, 16, 3, 19.096432),
    Sketcher.Constraint("DistanceX", 17, 3, 16, 3, 17.67767),
    Sketcher.Constraint("DistanceY", 16, 3, 17, 3, 17.67767),
    Sketcher.Constraint("DistanceX", 20, 3, 12, 3, 59.616671),
    Sketcher.Constraint("DistanceY", 16, 3, 21, 3, 72.505032),
    Sketcher.Constraint("DistanceY", 21, 3, 23, 3, 59.616671),
    Sketcher.Constraint("DistanceX", 23, 3, 24, 3, 8.373912),
    Sketcher.Constraint("DistanceX", 24, 3, 25, 3, 8.373912),
    Sketcher.Constraint("DistanceY", 22, 3, 25, 3, 37.334949),
    Sketcher.Constraint("DistanceY", 25, 3, 26, 3, 16.593311),
    Sketcher.Constraint("DistanceX", 36, 3, 37, 3, 72.505032),
])
sketch4.setExpression("Constraints[74]", "Params.sketch4_diameter")
sketch4.setExpression("Constraints[75]", "Params.sketch4_diameter2")
pocket2 = body2.newObject("PartDesign::Pocket", "Pocket001")
pocket2.Profile = sketch4
pocket2.Type = "ThroughAll"
pocket2.Reversed = True

sketch5 = body2.newObject("Sketcher::SketchObject", "Sketch004")
sketch5.AttachmentSupport = (doc.getObject("XZ_Plane001"), [""])
sketch5.MapMode = "FlatFace"
sketch5.AttachmentOffset = App.Placement(V(0, 0, -20), App.Rotation())
add_polygon(sketch5, [(-353.807, -353.807), (-353.807, 353.807), (353.807, 353.807), (353.807, -353.807)])
sketch5.addGeometry(Part.LineSegment(V(-146.2376, -220.996752, 0), V(-157.049762, -231.808913, 0)), False)
sketch5.addGeometry(Part.ArcOfCircle(Part.Circle(V(0, 0, 0), V(0, 0, 1), 280), math.radians(-124.117508), math.radians(-113.249301)), False)
sketch5.addGeometry(Part.LineSegment(V(-110.52514, -257.262888, 0), V(-64.194904, -226.088454, 0)), False)
sketch5.addGeometry(Part.LineSegment(V(-64.194904, -226.088454, 0), V(-64.194904, -208.008879, 0)), False)
sketch5.addGeometry(Part.LineSegment(V(-64.194904, -208.008879, 0), V(-111.993839, -240.171564, 0)), False)
sketch5.addGeometry(Part.ArcOfCircle(Part.Circle(V(0, 0, 0), V(0, 0, 1), 265), math.radians(-123.493336), math.radians(-115)), False)
sketch5.addConstraint([
    Sketcher.Constraint("Coincident", 4, 2, 5, 1),
    Sketcher.Constraint("Coincident", 5, 2, 6, 1),
    Sketcher.Constraint("Coincident", 6, 2, 7, 1),
    Sketcher.Constraint("Coincident", 7, 2, 8, 1),
    Sketcher.Constraint("Coincident", 8, 2, 9, 2),
    Sketcher.Constraint("Coincident", 9, 1, 4, 1),
    Sketcher.Constraint("Vertical", 0),
    Sketcher.Constraint("Horizontal", 1),
    Sketcher.Constraint("Vertical", 2),
    Sketcher.Constraint("Horizontal", 3),
    Sketcher.Constraint("Vertical", 7),
    Sketcher.Constraint("Coincident", 5, 3, -1, 1),
    Sketcher.Constraint("Coincident", 9, 3, -1, 1),
    Sketcher.Constraint("Symmetric", 0, 2, 2, 2, -1, 1),
    Sketcher.Constraint("Parallel", 6, 8),
    Sketcher.Constraint("Equal", 3, 0),
    Sketcher.Constraint("Radius", 5, 280.0),
    Sketcher.Constraint("Radius", 9, 265.0),
    Sketcher.Constraint("Angle", 4, Q("-135 deg")),
    Sketcher.Constraint("DistanceX", 1, 1, 1, 2, 707.614),
    Sketcher.Constraint("DistanceX", 9, 1, -1, 1, 146.2376),
    Sketcher.Constraint("DistanceX", 8, 2, 5, 2, 1.468699),
    Sketcher.Constraint("DistanceY", 7, 1, 7, 2, 18.079575),
    Sketcher.Constraint("DistanceX", 5, 2, -1, 1, 110.52514),
    Sketcher.Constraint("DistanceY", 7, 2, -1, 1, 208.008879),
])
sketch5.setExpression("Constraints[20]", "Params.sketch5_radius")
sketch5.setExpression("Constraints[21]", "Params.sketch5_radius2")
pocket3 = body2.newObject("PartDesign::Pocket", "Pocket002")
pocket3.Profile = sketch5
pocket3.Type = "ThroughAll"
pocket3.Reversed = True

sketch6 = body2.newObject("Sketcher::SketchObject", "Sketch005")
sketch6.Placement = App.Placement(V(76.336747, 0, -113.448715), App.Rotation(V(0.829665535, 0, 0.558260781), V(0, 1, 0), V(-0.558260781, 0, 0.829665535), "ZXY"))
add_polygon(sketch6, [(-322.489705, 16), (-322.489705, 4), (-131.501881, 4), (-131.501881, 16)])
sketch6.addConstraint([
    Sketcher.Constraint("Vertical", 0),
    Sketcher.Constraint("Horizontal", 1),
    Sketcher.Constraint("Vertical", 2),
    Sketcher.Constraint("Horizontal", 3),
    Sketcher.Constraint("DistanceY", 0, 2, 0, 1, 12.0),
    Sketcher.Constraint("DistanceY", -1, 1, 0, 2, 4.0),
    Sketcher.Constraint("DistanceX", 1, 1, 1, 2, 190.987824),
    Sketcher.Constraint("DistanceX", 1, 2, -1, 1, 131.501881),
])
sketch6.setExpression("Constraints[8]", "Params.sketch6_height")
pocket4 = body2.newObject("PartDesign::Pocket", "Pocket003")
pocket4.Profile = sketch6
pocket4.Type = "ThroughAll"
pocket4.Midplane = True
doc.recompute()

fillet = body2.newObject("PartDesign::Fillet", "Fillet")
fillet.Base = (pocket4, edges_at(pocket4, [(-64.195, 18, -208.009)]))
fillet.setExpression("Radius", "Params.fillet_radius")
doc.recompute()

fillet2 = body2.newObject("PartDesign::Fillet", "Fillet001")
fillet2.Base = (fillet, edges_at(fillet, [(-110.525, 18, -257.263), (-111.994, 18, -240.172)]))
fillet2.setExpression("Radius", "Params.fillet2_radius")
doc.recompute()

fillet3 = body2.newObject("PartDesign::Fillet", "Fillet002")
fillet3.Base = (fillet2, edges_at(fillet2, [(-146.238, 18, -220.997), (-64.195, 18, -226.088), (-157.05, 18, -231.809)]))
fillet3.setExpression("Radius", "Params.fillet3_radius")

doc.recompute()
